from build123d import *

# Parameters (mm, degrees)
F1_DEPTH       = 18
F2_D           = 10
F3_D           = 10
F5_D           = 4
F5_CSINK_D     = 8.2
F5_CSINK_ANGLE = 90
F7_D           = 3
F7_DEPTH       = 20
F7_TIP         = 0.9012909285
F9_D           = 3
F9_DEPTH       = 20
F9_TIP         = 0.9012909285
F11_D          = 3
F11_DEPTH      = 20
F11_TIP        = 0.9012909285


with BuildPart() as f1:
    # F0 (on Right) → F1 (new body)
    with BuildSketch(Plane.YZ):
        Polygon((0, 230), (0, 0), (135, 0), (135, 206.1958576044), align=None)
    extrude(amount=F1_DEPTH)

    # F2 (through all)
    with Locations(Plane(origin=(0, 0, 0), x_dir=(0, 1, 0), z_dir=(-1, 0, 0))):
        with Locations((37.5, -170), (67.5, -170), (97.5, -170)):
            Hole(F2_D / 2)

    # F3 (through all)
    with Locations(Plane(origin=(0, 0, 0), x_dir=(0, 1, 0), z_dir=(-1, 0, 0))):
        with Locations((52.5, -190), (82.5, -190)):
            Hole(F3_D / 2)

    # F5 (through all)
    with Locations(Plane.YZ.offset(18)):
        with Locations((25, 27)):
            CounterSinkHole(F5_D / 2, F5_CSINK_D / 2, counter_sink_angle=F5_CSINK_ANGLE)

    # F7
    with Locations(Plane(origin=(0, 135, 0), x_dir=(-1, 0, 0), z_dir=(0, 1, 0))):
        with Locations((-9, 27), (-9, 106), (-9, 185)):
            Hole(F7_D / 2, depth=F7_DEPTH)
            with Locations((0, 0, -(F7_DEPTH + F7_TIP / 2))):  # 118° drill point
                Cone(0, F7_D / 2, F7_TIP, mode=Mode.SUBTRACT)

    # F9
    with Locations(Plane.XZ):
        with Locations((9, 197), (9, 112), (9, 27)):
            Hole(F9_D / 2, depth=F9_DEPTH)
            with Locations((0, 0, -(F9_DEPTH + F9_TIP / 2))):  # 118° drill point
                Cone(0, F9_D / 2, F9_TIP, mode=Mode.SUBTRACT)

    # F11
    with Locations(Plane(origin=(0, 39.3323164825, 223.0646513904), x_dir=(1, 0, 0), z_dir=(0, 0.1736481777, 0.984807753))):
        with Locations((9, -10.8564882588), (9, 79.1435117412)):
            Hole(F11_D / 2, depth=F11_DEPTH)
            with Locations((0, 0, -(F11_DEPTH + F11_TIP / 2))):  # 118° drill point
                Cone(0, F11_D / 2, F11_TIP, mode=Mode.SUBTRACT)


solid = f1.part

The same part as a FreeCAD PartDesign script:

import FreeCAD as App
import Part
import Sketcher

V = App.Vector
Q = App.Units.Quantity

doc = App.newDocument("Part")
body = doc.addObject("PartDesign::Body", "Body")

# Sketch on YZ plane
sketch1 = body.newObject("Sketcher::SketchObject", "Sketch")
sketch1.AttachmentSupport = (doc.getObject("YZ_Plane"), [""])
sketch1.MapMode = "FlatFace"
sketch1.addGeometry([
    Part.LineSegment(V(0, 230, 0), V(0, 0, 0)),
    Part.LineSegment(V(0, 0, 0), V(135, 0, 0)),
    Part.LineSegment(V(135, 0, 0), V(135, 206, 0)),
    Part.LineSegment(V(135, 206, 0), V(0, 230, 0)),
], False)
sketch1.addConstraint([
    Sketcher.Constraint("Coincident", 0, 2, 1, 1),
    Sketcher.Constraint("Coincident", 1, 2, 2, 1),
    Sketcher.Constraint("Coincident", 2, 2, 3, 1),
    Sketcher.Constraint("Coincident", 3, 2, 0, 1),
    Sketcher.Constraint("Vertical", 0),
    Sketcher.Constraint("Horizontal", 1),
    Sketcher.Constraint("Vertical", 2),
    Sketcher.Constraint("Coincident", 0, 2, -1, 1),
    Sketcher.Constraint("DistanceX", 1, 1, 1, 2, 135.0),
    Sketcher.Constraint("DistanceY", 0, 2, 0, 1, 230.0),
    Sketcher.Constraint("Angle", 3, Q("170 deg")),
])
pad1 = body.newObject("PartDesign::Pad", "Pad")
pad1.Profile = sketch1
pad1.Length = 18

# Sketch on YZ plane
sketch2 = body.newObject("Sketcher::SketchObject", "Sketch001")
sketch2.AttachmentSupport = (doc.getObject("YZ_Plane"), [""])
sketch2.MapMode = "FlatFace"
sketch2.addGeometry([
    Part.Circle(V(38, 170, 0), V(0, 0, 1), 5),
    Part.Circle(V(68, 170, 0), V(0, 0, 1), 5),
    Part.Circle(V(98, 170, 0), V(0, 0, 1), 5),
], False)
sketch2.addConstraint([
    Sketcher.Constraint("Equal", 0, 1),
    Sketcher.Constraint("Equal", 1, 2),
    Sketcher.Constraint("Horizontal", 0, 3, 1, 3),
    Sketcher.Constraint("Horizontal", 1, 3, 2, 3),
    Sketcher.Constraint("Diameter", 0, 10.0),
    Sketcher.Constraint("DistanceY", -1, 1, 0, 3, 170.0),
    Sketcher.Constraint("DistanceX", 0, 3, 1, 3, 30.0),
    Sketcher.Constraint("DistanceX", 1, 3, 2, 3, 30.0),
    Sketcher.Constraint("DistanceX", -1, 1, 0, 3, 37.5),
])
doc.recompute()
hole = body.newObject("PartDesign::Hole", "Hole")
hole.Profile = sketch2
hole.ThreadType = "None"
hole.Diameter = 10
hole.DepthType = "ThroughAll"
hole.Reversed = True

# Sketch on YZ plane
sketch3 = body.newObject("Sketcher::SketchObject", "Sketch002")
sketch3.AttachmentSupport = (doc.getObject("YZ_Plane"), [""])
sketch3.MapMode = "FlatFace"
sketch3.addGeometry([
    Part.Circle(V(52, 190, 0), V(0, 0, 1), 5),
    Part.Circle(V(82, 190, 0), V(0, 0, 1), 5),
], False)
sketch3.addConstraint([
    Sketcher.Constraint("Equal", 0, 1),
    Sketcher.Constraint("Horizontal", 0, 3, 1, 3),
    Sketcher.Constraint("Diameter", 0, 10.0),
    Sketcher.Constraint("DistanceY", -1, 1, 0, 3, 190.0),
    Sketcher.Constraint("DistanceX", 0, 3, 1, 3, 30.0),
    Sketcher.Constraint("DistanceX", -1, 1, 0, 3, 52.5),
])
doc.recompute()
hole2 = body.newObject("PartDesign::Hole", "Hole001")
hole2.Profile = sketch3
hole2.ThreadType = "None"
hole2.Diameter = 10
hole2.DepthType = "ThroughAll"
hole2.Reversed = True

# Sketch on YZ plane
sketch4 = body.newObject("Sketcher::SketchObject", "Sketch003")
sketch4.AttachmentSupport = (doc.getObject("YZ_Plane"), [""])
sketch4.MapMode = "FlatFace"
sketch4.AttachmentOffset = App.Placement(V(0, 0, 18), App.Rotation())
sketch4.addGeometry(Part.Circle(V(25, 27, 0), V(0, 0, 1), 2), False)
sketch4.addConstraint([
    Sketcher.Constraint("Diameter", 0, 4.0),
    Sketcher.Constraint("DistanceX", -1, 1, 0, 3, 25.0),
    Sketcher.Constraint("DistanceY", -1, 1, 0, 3, 27.0),
])
doc.recompute()
hole3 = body.newObject("PartDesign::Hole", "Hole002")
hole3.Profile = sketch4
hole3.ThreadType = "None"
hole3.Diameter = 4
hole3.DepthType = "ThroughAll"
hole3.HoleCutType = "Countersink"
hole3.HoleCutDiameter = 8.2
hole3.HoleCutCountersinkAngle = 90

# Sketch on XZ plane
sketch5 = body.newObject("Sketcher::SketchObject", "Sketch004")
sketch5.AttachmentSupport = (doc.getObject("XZ_Plane"), [""])
sketch5.MapMode = "FlatFace"
sketch5.AttachmentOffset = App.Placement(V(0, 0, -135), App.Rotation())
sketch5.addGeometry([
    Part.Circle(V(9, 27, 0), V(0, 0, 1), 1.5),
    Part.Circle(V(9, 106, 0), V(0, 0, 1), 1.5),
    Part.Circle(V(9, 185, 0), V(0, 0, 1), 1.5),
], False)
sketch5.addConstraint([
    Sketcher.Constraint("Equal", 0, 1),
    Sketcher.Constraint("Equal", 1, 2),
    Sketcher.Constraint("Vertical", 0, 3, 1, 3),
    Sketcher.Constraint("Vertical", 1, 3, 2, 3),
    Sketcher.Constraint("Diameter", 0, 3.0),
    Sketcher.Constraint("DistanceX", -1, 1, 0, 3, 9.0),
    Sketcher.Constraint("DistanceY", -1, 1, 0, 3, 27.0),
    Sketcher.Constraint("DistanceY", -1, 1, 1, 3, 106.0),
    Sketcher.Constraint("DistanceY", -1, 1, 2, 3, 185.0),
])
doc.recompute()
hole4 = body.newObject("PartDesign::Hole", "Hole003")
hole4.Profile = sketch5
hole4.ThreadType = "None"
hole4.Diameter = 3
hole4.DepthType = "Dimension"
hole4.Depth = 20
hole4.DrillPoint = "Angled"
hole4.DrillPointAngle = 118
hole4.Reversed = True

# Sketch on XZ plane
sketch6 = body.newObject("Sketcher::SketchObject", "Sketch005")
sketch6.AttachmentSupport = (doc.getObject("XZ_Plane"), [""])
sketch6.MapMode = "FlatFace"
sketch6.addGeometry([
    Part.Circle(V(9, 197, 0), V(0, 0, 1), 1.5),
    Part.Circle(V(9, 112, 0), V(0, 0, 1), 1.5),
    Part.Circle(V(9, 27, 0), V(0, 0, 1), 1.5),
], False)
sketch6.addConstraint([
    Sketcher.Constraint("Equal", 0, 1),
    Sketcher.Constraint("Equal", 1, 2),
    Sketcher.Constraint("Vertical", 0, 3, 1, 3),
    Sketcher.Constraint("Vertical", 1, 3, 2, 3),
    Sketcher.Constraint("Diameter", 0, 3.0),
    Sketcher.Constraint("DistanceX", -1, 1, 0, 3, 9.0),
    Sketcher.Constraint("DistanceY", -1, 1, 0, 3, 197.0),
    Sketcher.Constraint("DistanceY", -1, 1, 1, 3, 112.0),
    Sketcher.Constraint("DistanceY", -1, 1, 2, 3, 27.0),
])
doc.recompute()
hole5 = body.newObject("PartDesign::Hole", "Hole004")
hole5.Profile = sketch6
hole5.ThreadType = "None"
hole5.Diameter = 3
hole5.DepthType = "Dimension"
hole5.Depth = 20
hole5.DrillPoint = "Angled"
hole5.DrillPointAngle = 118

# Sketch on an angled plane
sketch7 = body.newObject("Sketcher::SketchObject", "Sketch006")
sketch7.Placement = App.Placement(V(0, 39.332316, 223.064651), App.Rotation(V(1, 0, 0), V(0, 0.984807753, -0.173648178), V(0, 0.173648178, 0.984807753), "ZXY"))
sketch7.addGeometry([
    Part.Circle(V(9, -10.9, 0), V(0, 0, 1), 1.5),
    Part.Circle(V(9, 79.1, 0), V(0, 0, 1), 1.5),
], False)
sketch7.addConstraint([
    Sketcher.Constraint("Equal", 0, 1),
    Sketcher.Constraint("Vertical", 0, 3, 1, 3),
    Sketcher.Constraint("Diameter", 0, 3.0),
    Sketcher.Constraint("DistanceX", -1, 1, 0, 3, 9.0),
    Sketcher.Constraint("DistanceY", 0, 3, 1, 3, 90.0),
    Sketcher.Constraint("DistanceY", 0, 3, -1, 1, 10.856488),
])
doc.recompute()
hole6 = body.newObject("PartDesign::Hole", "Hole005")
hole6.Profile = sketch7
hole6.ThreadType = "None"
hole6.Diameter = 3
hole6.DepthType = "Dimension"
hole6.Depth = 20
hole6.DrillPoint = "Angled"
hole6.DrillPointAngle = 118

doc.recompute()
